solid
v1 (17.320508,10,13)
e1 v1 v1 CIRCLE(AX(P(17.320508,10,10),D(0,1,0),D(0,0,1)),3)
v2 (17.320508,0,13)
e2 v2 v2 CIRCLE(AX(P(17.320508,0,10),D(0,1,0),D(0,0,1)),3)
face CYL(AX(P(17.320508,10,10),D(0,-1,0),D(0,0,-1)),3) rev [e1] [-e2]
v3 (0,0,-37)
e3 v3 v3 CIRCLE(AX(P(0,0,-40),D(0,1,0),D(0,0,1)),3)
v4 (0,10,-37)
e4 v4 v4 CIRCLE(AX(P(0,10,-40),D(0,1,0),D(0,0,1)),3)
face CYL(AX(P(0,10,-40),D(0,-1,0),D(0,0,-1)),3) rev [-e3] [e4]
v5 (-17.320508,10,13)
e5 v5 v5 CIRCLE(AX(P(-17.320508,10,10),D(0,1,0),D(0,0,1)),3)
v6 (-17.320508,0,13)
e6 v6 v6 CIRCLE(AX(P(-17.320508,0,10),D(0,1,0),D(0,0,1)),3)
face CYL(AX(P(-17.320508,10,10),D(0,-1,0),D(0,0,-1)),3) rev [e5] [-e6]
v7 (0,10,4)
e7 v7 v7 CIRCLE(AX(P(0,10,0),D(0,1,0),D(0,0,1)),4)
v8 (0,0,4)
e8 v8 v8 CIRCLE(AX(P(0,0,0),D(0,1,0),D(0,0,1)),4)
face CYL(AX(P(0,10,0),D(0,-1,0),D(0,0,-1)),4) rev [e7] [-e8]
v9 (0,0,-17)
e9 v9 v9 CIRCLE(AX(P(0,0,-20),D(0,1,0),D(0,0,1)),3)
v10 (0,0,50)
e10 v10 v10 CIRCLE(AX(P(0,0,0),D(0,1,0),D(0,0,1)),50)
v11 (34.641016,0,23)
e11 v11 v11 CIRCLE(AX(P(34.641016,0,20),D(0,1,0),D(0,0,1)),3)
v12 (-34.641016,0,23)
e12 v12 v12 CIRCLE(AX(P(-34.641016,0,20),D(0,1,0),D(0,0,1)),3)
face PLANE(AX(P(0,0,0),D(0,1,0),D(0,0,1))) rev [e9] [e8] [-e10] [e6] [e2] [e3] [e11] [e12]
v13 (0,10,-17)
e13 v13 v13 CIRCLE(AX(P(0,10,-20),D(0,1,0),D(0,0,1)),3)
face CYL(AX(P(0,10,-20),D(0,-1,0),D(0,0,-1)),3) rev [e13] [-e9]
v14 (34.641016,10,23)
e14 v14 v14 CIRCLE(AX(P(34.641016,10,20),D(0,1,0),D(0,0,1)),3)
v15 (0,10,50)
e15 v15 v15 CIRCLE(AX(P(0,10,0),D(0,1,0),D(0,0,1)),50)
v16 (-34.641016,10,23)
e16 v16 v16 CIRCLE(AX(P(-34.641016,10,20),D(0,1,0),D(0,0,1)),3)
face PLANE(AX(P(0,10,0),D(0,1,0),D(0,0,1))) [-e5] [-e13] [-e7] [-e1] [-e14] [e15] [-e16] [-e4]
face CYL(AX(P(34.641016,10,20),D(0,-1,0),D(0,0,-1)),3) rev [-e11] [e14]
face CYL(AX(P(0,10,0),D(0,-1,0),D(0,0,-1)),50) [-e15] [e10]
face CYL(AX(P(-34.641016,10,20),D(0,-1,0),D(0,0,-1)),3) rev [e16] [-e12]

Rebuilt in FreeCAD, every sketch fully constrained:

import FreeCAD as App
import Part
import Sketcher
from FreeCAD import Vector

doc = App.newDocument("Part")
body = doc.addObject("PartDesign::Body", "Body")

sketch1 = body.newObject("Sketcher::SketchObject", "Sketch")
sketch1.AttachmentSupport = (doc.getObject("XZ_Plane"), [""])
sketch1.MapMode = "FlatFace"
sketch1.addGeometry(Part.Circle(Vector(0, 0, 0), Vector(0, 0, 1), 50), False)
sketch1.addGeometry(Part.Circle(Vector(0, -40, 0), Vector(0, 0, 1), 3), False)
sketch1.addGeometry(Part.Circle(Vector(0, -20, 0), Vector(0, 0, 1), 3), False)
sketch1.addGeometry(Part.Circle(Vector(-34.6, 20, 0), Vector(0, 0, 1), 3), False)
sketch1.addGeometry(Part.Circle(Vector(0, 0, 0), Vector(0, 0, 1), 4), False)
sketch1.addGeometry(Part.Circle(Vector(-17.3, 10, 0), Vector(0, 0, 1), 3), False)
sketch1.addGeometry(Part.Circle(Vector(17.3, 10, 0), Vector(0, 0, 1), 3), False)
sketch1.addGeometry(Part.Circle(Vector(34.6, 20, 0), Vector(0, 0, 1), 3), False)
sketch1.addConstraint(Sketcher.Constraint("Coincident", 0, 3, -1, 1))
sketch1.addConstraint(Sketcher.Constraint("Coincident", 4, 3, -1, 1))
sketch1.addConstraint(Sketcher.Constraint("Equal", 1, 2))
sketch1.addConstraint(Sketcher.Constraint("Equal", 2, 3))
sketch1.addConstraint(Sketcher.Constraint("Equal", 3, 5))
sketch1.addConstraint(Sketcher.Constraint("Equal", 5, 6))
sketch1.addConstraint(Sketcher.Constraint("Equal", 6, 7))
sketch1.addConstraint(Sketcher.Constraint("Symmetric", 5, 3, 6, 3, -2))
sketch1.addConstraint(Sketcher.Constraint("Symmetric", 3, 3, 7, 3, -2))
sketch1.addConstraint(Sketcher.Constraint("PointOnObject", 1, 3, -2))
sketch1.addConstraint(Sketcher.Constraint("PointOnObject", 2, 3, -2))
sketch1.addConstraint(Sketcher.Constraint("Diameter", 0, 100.0))
sketch1.addConstraint(Sketcher.Constraint("Diameter", 1, 6.0))
sketch1.addConstraint(Sketcher.Constraint("Diameter", 4, 8.0))
sketch1.addConstraint(Sketcher.Constraint("DistanceY", 1, 3, -1, 1, 40.0))
sketch1.addConstraint(Sketcher.Constraint("DistanceY", 2, 3, -1, 1, 20.0))
sketch1.addConstraint(Sketcher.Constraint("DistanceY", -1, 1, 3, 3, 20.0))
sketch1.addConstraint(Sketcher.Constraint("DistanceY", -1, 1, 5, 3, 10.0))
sketch1.addConstraint(Sketcher.Constraint("DistanceX", 5, 3, -1, 1, 17.320508))
sketch1.addConstraint(Sketcher.Constraint("DistanceX", 3, 3, 5, 3, 17.320508))
pad1 = body.newObject("PartDesign::Pad", "Pad")
pad1.Profile = sketch1
pad1.Length = 10
pad1.Reversed = True

doc.recompute()
